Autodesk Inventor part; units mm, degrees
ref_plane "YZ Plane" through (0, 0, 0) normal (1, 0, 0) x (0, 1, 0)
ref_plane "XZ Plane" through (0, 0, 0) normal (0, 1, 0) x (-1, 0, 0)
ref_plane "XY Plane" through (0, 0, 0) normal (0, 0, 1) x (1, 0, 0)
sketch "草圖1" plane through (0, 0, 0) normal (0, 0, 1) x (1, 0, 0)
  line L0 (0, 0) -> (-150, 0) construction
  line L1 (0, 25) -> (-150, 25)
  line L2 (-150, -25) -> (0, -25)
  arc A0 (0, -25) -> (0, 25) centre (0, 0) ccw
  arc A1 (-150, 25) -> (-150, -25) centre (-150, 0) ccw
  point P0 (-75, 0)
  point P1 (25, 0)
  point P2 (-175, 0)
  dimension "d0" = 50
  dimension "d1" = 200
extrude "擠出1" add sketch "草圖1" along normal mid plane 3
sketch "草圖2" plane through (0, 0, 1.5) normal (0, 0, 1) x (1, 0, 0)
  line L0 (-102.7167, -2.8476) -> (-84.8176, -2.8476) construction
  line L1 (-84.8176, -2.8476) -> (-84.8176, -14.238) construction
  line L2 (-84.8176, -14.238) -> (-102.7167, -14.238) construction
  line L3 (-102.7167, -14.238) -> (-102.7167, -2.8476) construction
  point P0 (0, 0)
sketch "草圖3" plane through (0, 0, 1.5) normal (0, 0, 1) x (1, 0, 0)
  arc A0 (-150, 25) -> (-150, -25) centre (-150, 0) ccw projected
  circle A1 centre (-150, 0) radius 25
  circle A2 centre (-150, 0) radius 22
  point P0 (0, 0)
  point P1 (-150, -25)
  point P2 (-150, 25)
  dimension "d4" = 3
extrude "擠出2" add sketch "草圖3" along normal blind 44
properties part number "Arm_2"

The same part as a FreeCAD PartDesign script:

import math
import FreeCAD as App
import Part
import Sketcher
Q = App.Units.Quantity

doc = App.newDocument("Part")
body = doc.addObject("PartDesign::Body", "Body")

# Sketch on XY plane
sketch1 = doc.addObject("Sketcher::SketchObject", "Sketch")
body.addObject(sketch1)
sketch1.AttachmentSupport = (doc.XY_Plane, [""])
sketch1.MapMode = "FlatFace"
sketch1.addGeometry([
    Part.ArcOfCircle(Part.Circle(App.Vector(0, 0, 0), App.Vector(0, 0, 1), 25), math.radians(-90), math.radians(90)),
    Part.LineSegment(App.Vector(0, 25, 0), App.Vector(-150, 25, 0)),
    Part.ArcOfCircle(Part.Circle(App.Vector(-150, 0, 0), App.Vector(0, 0, 1), 25), math.radians(90), math.radians(270)),
    Part.LineSegment(App.Vector(-150, -25, 0), App.Vector(0, -25, 0)),
], False)
sketch1.addConstraint([
    Sketcher.Constraint("Tangent", 0, 2, 1, 1),
    Sketcher.Constraint("Tangent", 1, 2, 2, 1),
    Sketcher.Constraint("Tangent", 2, 2, 3, 1),
    Sketcher.Constraint("Tangent", 3, 2, 0, 1),
    Sketcher.Constraint("Horizontal", 1),
    Sketcher.Constraint("Horizontal", 3),
    Sketcher.Constraint("Coincident", 0, 3, -1, 1),
    Sketcher.Constraint("Radius", 0, Q("25 mm")),
    Sketcher.Constraint("DistanceX", 1, 2, 1, 1, Q("150 mm")),
])
pad1 = doc.addObject("PartDesign::Pad", "Pad")
body.addObject(pad1)
pad1.Profile = sketch1
pad1.Length = 3
pad1.Midplane = True

# Sketch on XY plane
sketch2 = doc.addObject("Sketcher::SketchObject", "Sketch001")
body.addObject(sketch2)
sketch2.AttachmentSupport = (doc.XY_Plane, [""])
sketch2.MapMode = "FlatFace"
sketch2.AttachmentOffset = App.Placement(App.Vector(0, 0, 1.5), App.Rotation())
sketch2.addGeometry([
    Part.Circle(App.Vector(-150, 0, 0), App.Vector(0, 0, 1), 25),
    Part.Circle(App.Vector(-150, 0, 0), App.Vector(0, 0, 1), 22),
], False)
sketch2.addConstraint([
    Sketcher.Constraint("Coincident", 1, 3, 0, 3),
    Sketcher.Constraint("PointOnObject", 0, 3, -1),
    Sketcher.Constraint("Diameter", 0, Q("50 mm")),
    Sketcher.Constraint("Diameter", 1, Q("44 mm")),
    Sketcher.Constraint("DistanceX", 0, 3, -1, 1, Q("150 mm")),
])
pad2 = doc.addObject("PartDesign::Pad", "Pad001")
body.addObject(pad2)
pad2.Profile = sketch2
pad2.Length = 44

doc.recompute()
